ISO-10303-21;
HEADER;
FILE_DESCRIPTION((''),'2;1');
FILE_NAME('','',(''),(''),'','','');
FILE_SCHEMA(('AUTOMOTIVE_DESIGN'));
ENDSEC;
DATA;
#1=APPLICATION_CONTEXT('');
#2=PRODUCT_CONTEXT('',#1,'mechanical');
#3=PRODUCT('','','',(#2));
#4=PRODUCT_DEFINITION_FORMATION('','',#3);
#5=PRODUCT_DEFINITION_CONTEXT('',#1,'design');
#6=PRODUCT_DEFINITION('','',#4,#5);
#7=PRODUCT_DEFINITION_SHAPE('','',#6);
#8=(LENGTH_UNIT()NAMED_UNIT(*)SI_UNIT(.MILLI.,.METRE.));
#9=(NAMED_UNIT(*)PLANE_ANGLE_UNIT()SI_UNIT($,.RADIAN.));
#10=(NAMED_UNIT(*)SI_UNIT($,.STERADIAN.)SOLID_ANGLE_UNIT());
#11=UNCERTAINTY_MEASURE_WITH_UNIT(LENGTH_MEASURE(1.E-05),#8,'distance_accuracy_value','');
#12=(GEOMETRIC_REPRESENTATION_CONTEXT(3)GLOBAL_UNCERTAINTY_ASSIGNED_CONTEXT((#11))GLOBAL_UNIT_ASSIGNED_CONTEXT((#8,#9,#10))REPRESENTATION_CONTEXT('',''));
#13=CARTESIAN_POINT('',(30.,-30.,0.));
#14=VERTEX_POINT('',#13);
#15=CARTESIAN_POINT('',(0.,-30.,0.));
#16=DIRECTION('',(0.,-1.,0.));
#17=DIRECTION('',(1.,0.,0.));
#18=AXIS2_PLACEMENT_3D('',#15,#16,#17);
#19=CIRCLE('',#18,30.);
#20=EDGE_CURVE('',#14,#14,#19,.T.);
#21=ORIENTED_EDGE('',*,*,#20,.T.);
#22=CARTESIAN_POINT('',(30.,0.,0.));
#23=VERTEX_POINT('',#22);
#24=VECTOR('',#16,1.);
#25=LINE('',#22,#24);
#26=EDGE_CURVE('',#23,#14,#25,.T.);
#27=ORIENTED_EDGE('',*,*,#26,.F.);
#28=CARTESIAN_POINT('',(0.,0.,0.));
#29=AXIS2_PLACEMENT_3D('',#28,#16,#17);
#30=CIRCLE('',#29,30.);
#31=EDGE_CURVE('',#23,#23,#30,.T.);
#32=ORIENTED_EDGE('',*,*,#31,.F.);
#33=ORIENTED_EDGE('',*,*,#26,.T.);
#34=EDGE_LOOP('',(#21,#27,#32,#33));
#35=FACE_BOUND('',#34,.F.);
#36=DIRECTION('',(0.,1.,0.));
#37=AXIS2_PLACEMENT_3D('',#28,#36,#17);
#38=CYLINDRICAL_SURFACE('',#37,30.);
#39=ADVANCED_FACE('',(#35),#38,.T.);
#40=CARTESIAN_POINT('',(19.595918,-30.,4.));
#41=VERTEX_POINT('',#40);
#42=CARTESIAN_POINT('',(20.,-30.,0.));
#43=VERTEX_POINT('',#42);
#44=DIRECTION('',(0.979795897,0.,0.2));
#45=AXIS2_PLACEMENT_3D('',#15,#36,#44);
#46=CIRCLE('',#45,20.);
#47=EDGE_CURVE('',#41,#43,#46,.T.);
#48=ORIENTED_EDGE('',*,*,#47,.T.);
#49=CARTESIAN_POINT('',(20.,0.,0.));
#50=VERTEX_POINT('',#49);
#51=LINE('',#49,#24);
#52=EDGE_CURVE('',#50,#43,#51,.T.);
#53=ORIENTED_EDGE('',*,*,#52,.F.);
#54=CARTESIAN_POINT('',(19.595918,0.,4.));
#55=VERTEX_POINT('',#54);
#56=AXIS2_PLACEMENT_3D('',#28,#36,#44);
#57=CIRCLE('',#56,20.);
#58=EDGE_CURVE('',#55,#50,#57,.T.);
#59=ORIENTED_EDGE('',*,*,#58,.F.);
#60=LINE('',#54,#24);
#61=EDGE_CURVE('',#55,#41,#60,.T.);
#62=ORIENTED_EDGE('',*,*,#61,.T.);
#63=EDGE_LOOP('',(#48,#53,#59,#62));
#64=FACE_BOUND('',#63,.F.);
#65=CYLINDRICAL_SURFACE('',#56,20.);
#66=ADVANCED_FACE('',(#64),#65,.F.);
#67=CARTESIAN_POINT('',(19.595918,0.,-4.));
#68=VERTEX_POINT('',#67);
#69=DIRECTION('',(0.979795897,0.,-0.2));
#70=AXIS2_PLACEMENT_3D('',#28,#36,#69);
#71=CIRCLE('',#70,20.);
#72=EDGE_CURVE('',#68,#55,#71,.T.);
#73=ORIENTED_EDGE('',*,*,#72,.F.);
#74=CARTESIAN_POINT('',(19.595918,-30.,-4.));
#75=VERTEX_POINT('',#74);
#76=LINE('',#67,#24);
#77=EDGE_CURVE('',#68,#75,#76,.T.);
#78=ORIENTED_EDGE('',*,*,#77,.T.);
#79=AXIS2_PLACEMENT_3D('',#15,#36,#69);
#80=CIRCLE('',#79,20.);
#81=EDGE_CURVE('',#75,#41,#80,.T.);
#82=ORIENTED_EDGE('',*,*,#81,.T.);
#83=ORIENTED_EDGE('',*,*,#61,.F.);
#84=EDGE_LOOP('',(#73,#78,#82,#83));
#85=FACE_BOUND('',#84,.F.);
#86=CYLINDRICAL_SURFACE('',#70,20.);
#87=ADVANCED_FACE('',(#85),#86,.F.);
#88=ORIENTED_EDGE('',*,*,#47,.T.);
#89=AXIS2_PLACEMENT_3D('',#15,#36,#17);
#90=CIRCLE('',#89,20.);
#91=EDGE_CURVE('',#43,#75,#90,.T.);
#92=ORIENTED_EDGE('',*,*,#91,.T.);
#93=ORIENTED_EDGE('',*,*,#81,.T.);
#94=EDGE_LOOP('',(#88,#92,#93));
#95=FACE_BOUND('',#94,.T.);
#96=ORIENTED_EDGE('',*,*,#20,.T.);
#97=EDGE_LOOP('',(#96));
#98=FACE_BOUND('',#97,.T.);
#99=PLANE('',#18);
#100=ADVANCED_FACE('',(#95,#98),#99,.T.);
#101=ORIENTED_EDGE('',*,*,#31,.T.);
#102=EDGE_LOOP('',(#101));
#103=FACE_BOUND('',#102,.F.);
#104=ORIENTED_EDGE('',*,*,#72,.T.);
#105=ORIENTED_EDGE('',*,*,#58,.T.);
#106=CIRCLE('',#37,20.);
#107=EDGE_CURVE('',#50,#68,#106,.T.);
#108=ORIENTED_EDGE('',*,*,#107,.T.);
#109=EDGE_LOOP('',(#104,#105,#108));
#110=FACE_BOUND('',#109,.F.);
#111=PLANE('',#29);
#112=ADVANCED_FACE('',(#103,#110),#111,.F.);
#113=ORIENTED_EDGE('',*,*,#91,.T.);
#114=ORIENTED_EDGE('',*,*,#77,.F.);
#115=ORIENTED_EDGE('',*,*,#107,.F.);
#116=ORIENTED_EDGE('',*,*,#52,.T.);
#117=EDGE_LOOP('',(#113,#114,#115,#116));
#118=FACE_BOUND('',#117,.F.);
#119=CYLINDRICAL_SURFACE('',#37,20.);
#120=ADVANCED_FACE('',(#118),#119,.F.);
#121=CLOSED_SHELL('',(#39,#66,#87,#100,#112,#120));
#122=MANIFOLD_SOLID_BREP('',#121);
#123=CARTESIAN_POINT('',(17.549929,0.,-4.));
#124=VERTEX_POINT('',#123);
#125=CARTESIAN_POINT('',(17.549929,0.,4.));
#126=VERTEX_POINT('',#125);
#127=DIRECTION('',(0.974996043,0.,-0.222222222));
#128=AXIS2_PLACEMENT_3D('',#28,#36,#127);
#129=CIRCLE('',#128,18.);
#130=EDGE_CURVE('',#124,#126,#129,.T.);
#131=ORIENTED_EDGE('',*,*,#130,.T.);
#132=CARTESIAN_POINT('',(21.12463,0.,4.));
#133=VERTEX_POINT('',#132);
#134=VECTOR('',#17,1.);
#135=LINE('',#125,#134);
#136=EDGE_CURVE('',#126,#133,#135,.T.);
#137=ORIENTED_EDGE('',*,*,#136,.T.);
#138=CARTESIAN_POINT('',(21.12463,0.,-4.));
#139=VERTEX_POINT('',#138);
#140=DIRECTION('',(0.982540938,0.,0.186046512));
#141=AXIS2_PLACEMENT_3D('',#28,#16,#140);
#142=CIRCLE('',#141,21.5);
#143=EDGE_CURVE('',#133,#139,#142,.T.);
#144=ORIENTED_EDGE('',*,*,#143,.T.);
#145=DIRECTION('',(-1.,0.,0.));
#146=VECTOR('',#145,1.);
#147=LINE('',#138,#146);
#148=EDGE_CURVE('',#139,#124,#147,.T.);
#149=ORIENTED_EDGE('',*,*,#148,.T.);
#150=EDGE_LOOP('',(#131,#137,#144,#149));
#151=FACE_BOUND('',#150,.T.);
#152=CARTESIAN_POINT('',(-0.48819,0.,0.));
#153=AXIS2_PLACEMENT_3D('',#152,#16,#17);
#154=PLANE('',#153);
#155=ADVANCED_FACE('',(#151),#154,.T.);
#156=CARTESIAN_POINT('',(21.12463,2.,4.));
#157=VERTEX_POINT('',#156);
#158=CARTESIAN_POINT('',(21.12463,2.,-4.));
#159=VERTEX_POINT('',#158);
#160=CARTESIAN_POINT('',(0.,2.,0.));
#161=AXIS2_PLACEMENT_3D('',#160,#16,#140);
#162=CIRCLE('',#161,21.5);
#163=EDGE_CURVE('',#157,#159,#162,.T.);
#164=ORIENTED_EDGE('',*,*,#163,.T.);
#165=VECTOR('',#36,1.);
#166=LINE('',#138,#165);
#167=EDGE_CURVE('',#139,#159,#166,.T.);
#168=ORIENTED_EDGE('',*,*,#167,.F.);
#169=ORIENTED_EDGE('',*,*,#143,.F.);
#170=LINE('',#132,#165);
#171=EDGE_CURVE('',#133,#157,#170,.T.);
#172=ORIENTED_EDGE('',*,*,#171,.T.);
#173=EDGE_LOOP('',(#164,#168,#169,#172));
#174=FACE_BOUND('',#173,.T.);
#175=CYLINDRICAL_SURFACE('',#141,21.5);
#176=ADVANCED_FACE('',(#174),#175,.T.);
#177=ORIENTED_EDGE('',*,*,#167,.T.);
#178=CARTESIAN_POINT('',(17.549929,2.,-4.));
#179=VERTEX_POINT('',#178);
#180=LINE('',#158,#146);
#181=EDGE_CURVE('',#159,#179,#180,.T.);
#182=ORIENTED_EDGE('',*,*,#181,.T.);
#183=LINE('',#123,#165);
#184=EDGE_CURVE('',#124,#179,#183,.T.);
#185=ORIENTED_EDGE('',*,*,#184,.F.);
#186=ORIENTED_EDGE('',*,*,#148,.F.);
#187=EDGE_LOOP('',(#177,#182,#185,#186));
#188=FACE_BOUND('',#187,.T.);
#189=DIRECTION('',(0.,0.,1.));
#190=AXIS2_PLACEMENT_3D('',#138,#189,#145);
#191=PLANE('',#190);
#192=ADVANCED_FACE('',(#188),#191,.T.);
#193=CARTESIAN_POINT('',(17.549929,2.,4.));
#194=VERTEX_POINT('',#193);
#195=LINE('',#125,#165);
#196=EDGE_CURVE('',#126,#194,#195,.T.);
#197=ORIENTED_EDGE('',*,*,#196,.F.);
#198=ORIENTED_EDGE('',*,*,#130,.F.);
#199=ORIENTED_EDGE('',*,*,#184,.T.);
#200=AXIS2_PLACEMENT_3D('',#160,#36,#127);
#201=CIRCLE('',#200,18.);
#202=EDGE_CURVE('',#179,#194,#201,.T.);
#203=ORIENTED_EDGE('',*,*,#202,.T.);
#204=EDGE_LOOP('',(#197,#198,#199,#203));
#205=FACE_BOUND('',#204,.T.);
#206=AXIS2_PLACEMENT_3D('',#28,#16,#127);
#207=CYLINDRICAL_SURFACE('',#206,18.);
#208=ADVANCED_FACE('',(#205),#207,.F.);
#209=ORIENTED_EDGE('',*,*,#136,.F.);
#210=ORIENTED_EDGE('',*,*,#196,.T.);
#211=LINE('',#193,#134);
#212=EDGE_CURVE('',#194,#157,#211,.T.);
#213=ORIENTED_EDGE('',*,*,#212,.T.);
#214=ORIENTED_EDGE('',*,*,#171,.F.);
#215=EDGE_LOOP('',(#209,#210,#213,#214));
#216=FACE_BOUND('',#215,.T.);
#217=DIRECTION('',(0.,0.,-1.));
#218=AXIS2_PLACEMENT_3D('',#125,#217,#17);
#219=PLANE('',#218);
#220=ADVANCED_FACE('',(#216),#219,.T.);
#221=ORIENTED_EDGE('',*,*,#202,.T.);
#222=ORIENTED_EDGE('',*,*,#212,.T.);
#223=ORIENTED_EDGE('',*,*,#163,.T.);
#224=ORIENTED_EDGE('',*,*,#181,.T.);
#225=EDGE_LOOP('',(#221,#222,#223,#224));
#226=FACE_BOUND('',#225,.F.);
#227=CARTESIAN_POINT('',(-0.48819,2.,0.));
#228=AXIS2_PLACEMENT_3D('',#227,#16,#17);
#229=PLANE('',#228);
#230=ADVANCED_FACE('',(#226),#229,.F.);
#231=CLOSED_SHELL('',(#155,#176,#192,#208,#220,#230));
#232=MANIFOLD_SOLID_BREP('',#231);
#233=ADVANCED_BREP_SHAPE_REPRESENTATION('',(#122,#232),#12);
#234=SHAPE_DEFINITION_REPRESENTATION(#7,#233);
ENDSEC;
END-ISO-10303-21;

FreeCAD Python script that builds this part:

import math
import FreeCAD as App
import Part
import Sketcher
from FreeCAD import Vector
Q = App.Units.Quantity

doc = App.newDocument("Part")
params = doc.addObject("Spreadsheet::Sheet", "Params")
for row, (alias, value) in enumerate([
    ("sketch1_diameter", "60 mm"),
    ("sketch1_radius", "20 mm"),
    ("pad1_length", "30 mm"),
    ("sketch2_radius", "18 mm"),
    ("sketch2_radius2", "21.5 mm"),
    ("pad2_length", "2 mm"),
], start=1):
    params.set(f"A{row}", alias)
    params.set(f"B{row}", "=" + value)
    params.setAlias(f"B{row}", alias)

body = doc.addObject("PartDesign::Body", "Body")

sketch1 = body.newObject("Sketcher::SketchObject", "Sketch")
sketch1.AttachmentSupport = (doc.getObject("XZ_Plane"), [""])
sketch1.MapMode = "FlatFace"
sketch1.addGeometry(Part.Circle(Vector(0, 0, 0), Vector(0, 0, 1), 30), False)
sketch1.addGeometry(Part.ArcOfCircle(Part.Circle(Vector(0, 0, 0), Vector(0, 0, 1), 20), math.radians(12), math.radians(348)), False)
sketch1.addGeometry(Part.ArcOfCircle(Part.Circle(Vector(0, 0, 0), Vector(0, 0, 1), 20), math.radians(0), math.radians(11.54)), False)
sketch1.addGeometry(Part.ArcOfCircle(Part.Circle(Vector(0, 0, 0), Vector(0, 0, 1), 20), math.radians(-11.54), math.radians(0)), False)
sketch1.addConstraint(Sketcher.Constraint("Tangent", 1, 1, 2, 2))
sketch1.addConstraint(Sketcher.Constraint("Tangent", 2, 1, 3, 2))
sketch1.addConstraint(Sketcher.Constraint("Tangent", 3, 1, 1, 2))
sketch1.addConstraint(Sketcher.Constraint("Coincident", 0, 3, -1, 1))
sketch1.addConstraint(Sketcher.Constraint("Coincident", 1, 3, -1, 1))
sketch1.addConstraint(Sketcher.Constraint("PointOnObject", 2, 1, -1))
sketch1.addConstraint(Sketcher.Constraint("Vertical", 1, 1, 3, 1))
sketch1.addConstraint(Sketcher.Constraint("Diameter", 0, Q("60 mm")))
sketch1.addConstraint(Sketcher.Constraint("Radius", 1, Q("20 mm")))
sketch1.addConstraint(Sketcher.Constraint("DistanceY", -1, 1, 1, 1, Q("4 mm")))
sketch1.setExpression("Constraints[7]", "Params.sketch1_diameter")
sketch1.setExpression("Constraints[8]", "Params.sketch1_radius")
pad1 = body.newObject("PartDesign::Pad", "Pad")
pad1.Profile = sketch1
pad1.setExpression("Length", "Params.pad1_length")
body2 = doc.addObject("PartDesign::Body", "Body001")

sketch2 = body2.newObject("Sketcher::SketchObject", "Sketch001")
sketch2.AttachmentSupport = (doc.getObject("XZ_Plane001"), [""])
sketch2.MapMode = "FlatFace"
sketch2.addGeometry(Part.LineSegment(Vector(17.5, 4, 0), Vector(21.1, 4, 0)), False)
sketch2.addGeometry(Part.ArcOfCircle(Part.Circle(Vector(0, 0, 0), Vector(0, 0, 1), 21.5), math.radians(11), math.radians(349)), False)
sketch2.addGeometry(Part.LineSegment(Vector(21.1, -4, 0), Vector(17.5, -4, 0)), False)
sketch2.addGeometry(Part.ArcOfCircle(Part.Circle(Vector(0, 0, 0), Vector(0, 0, 1), 18), math.radians(13), math.radians(347)), False)
sketch2.addConstraint(Sketcher.Constraint("Coincident", 0, 2, 1, 1))
sketch2.addConstraint(Sketcher.Constraint("Coincident", 1, 2, 2, 1))
sketch2.addConstraint(Sketcher.Constraint("Coincident", 2, 2, 3, 2))
sketch2.addConstraint(Sketcher.Constraint("Coincident", 3, 1, 0, 1))
sketch2.addConstraint(Sketcher.Constraint("Horizontal", 0))
sketch2.addConstraint(Sketcher.Constraint("Horizontal", 2))
sketch2.addConstraint(Sketcher.Constraint("Coincident", 1, 3, -1, 1))
sketch2.addConstraint(Sketcher.Constraint("Coincident", 3, 3, -1, 1))
sketch2.addConstraint(Sketcher.Constraint("Vertical", 0, 2, 1, 2))
sketch2.addConstraint(Sketcher.Constraint("Radius", 3, Q("18 mm")))
sketch2.addConstraint(Sketcher.Constraint("Radius", 1, Q("21.5 mm")))
sketch2.addConstraint(Sketcher.Constraint("DistanceY", -1, 1, 0, 2, Q("4 mm")))
sketch2.setExpression("Constraints[9]", "Params.sketch2_radius")
sketch2.setExpression("Constraints[10]", "Params.sketch2_radius2")
pad2 = body2.newObject("PartDesign::Pad", "Pad001")
pad2.Profile = sketch2
pad2.setExpression("Length", "Params.pad2_length")
pad2.Reversed = True

doc.recompute()
